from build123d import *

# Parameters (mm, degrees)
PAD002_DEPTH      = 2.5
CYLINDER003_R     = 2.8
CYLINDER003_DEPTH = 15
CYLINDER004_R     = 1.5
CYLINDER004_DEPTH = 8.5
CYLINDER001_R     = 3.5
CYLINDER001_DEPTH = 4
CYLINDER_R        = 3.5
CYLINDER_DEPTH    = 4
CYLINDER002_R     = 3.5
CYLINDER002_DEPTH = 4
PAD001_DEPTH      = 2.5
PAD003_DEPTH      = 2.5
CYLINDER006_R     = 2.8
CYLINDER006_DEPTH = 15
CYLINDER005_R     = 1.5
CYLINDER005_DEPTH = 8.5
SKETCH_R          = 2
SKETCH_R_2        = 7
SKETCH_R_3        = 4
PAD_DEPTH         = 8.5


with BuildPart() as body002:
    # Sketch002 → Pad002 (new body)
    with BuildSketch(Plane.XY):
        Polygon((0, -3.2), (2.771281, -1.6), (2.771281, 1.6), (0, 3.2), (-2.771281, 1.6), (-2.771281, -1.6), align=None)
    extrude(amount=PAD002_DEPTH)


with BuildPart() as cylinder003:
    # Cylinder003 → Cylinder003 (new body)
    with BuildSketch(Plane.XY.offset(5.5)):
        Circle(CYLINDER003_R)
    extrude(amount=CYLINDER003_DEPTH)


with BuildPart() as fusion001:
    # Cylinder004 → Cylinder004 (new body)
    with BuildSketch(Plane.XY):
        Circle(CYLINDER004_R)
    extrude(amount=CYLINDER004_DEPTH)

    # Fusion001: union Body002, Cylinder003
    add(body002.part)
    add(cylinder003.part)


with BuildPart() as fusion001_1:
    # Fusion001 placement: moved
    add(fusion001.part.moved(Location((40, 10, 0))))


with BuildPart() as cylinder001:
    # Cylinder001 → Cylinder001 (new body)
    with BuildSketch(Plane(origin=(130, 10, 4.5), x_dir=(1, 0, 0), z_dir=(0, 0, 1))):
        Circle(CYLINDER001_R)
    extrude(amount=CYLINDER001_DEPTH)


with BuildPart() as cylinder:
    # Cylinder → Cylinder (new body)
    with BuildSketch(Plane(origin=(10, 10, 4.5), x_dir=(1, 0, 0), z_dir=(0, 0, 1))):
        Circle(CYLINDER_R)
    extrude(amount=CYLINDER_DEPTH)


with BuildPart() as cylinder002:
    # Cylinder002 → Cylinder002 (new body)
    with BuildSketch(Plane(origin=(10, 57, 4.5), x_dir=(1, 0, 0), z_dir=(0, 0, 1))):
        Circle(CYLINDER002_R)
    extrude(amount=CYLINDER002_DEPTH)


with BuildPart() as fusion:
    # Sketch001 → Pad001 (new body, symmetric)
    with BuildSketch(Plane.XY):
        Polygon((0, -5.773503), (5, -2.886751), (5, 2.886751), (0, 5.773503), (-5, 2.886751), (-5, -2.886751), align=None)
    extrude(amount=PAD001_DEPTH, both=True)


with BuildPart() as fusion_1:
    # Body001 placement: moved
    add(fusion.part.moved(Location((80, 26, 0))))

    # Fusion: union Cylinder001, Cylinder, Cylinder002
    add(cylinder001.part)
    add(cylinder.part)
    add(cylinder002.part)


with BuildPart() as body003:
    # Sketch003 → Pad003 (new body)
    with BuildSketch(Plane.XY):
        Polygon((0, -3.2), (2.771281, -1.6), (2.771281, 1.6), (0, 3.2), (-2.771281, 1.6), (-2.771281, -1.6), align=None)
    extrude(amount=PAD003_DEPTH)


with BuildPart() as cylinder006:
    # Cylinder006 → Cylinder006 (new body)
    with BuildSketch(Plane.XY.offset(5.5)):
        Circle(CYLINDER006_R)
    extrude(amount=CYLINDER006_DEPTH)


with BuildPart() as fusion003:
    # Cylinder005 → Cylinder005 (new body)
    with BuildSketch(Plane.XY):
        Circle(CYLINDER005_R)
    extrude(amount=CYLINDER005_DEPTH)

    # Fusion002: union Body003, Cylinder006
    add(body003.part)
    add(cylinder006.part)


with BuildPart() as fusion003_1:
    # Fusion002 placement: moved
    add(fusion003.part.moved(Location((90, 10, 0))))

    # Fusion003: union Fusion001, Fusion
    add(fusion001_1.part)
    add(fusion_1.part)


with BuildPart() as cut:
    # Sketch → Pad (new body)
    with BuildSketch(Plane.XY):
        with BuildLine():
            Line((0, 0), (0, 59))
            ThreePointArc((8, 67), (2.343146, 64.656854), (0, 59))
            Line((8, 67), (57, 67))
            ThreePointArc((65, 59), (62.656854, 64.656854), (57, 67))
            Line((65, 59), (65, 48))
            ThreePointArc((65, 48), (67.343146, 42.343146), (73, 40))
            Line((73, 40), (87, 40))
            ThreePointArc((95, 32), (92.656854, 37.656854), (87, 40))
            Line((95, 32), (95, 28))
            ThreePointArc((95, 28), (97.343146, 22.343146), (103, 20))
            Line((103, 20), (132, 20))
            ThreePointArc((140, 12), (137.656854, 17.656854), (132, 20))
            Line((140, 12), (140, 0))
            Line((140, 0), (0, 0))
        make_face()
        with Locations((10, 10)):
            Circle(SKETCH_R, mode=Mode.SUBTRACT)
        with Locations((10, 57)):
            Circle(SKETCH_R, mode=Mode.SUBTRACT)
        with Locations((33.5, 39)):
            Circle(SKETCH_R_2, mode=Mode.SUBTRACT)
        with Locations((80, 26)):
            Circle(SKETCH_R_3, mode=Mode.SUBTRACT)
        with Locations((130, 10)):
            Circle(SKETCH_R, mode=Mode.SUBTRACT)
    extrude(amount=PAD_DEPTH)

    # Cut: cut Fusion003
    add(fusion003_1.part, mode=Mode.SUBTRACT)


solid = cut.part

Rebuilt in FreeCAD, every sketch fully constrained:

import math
import FreeCAD as App
import Part
import Sketcher
Q = App.Units.Quantity


def add_polygon(sketch, points):
    """Adds a closed chain of lines whose ends are joined by coincident constraints."""
    first, n = sketch.GeometryCount, len(points)
    for a, b in zip(points, points[1:] + points[:1]):
        sketch.addGeometry(Part.LineSegment(App.Vector(*a, 0), App.Vector(*b, 0)), False)
    for i in range(n):
        sketch.addConstraint(Sketcher.Constraint("Coincident", first + i, 2, first + (i + 1) % n, 1))

doc = App.newDocument("Part")
body = doc.addObject("PartDesign::Body", "Body")

# Sketch on XY plane
sketch1 = body.newObject("Sketcher::SketchObject", "Sketch")
sketch1.AttachmentSupport = (doc.getObject("XY_Plane"), [""])
sketch1.MapMode = "FlatFace"
add_polygon(sketch1, [(0, -3.2), (2.8, -1.6), (2.8, 1.6), (0, 3.2), (-2.8, 1.6), (-2.8, -1.6)])  # lines 0-5
sketch1.addConstraint(Sketcher.Constraint("Vertical", 1))
sketch1.addConstraint(Sketcher.Constraint("Vertical", 4))
sketch1.addConstraint(Sketcher.Constraint("Symmetric", 0, 2, 3, 2, -1, 1))
sketch1.addConstraint(Sketcher.Constraint("Symmetric", 2, 2, 5, 2, -1, 1))
sketch1.addConstraint(Sketcher.Constraint("PointOnObject", 2, 2, -2))
sketch1.addConstraint(Sketcher.Constraint("Parallel", 2, 5))
sketch1.addConstraint(Sketcher.Constraint("Horizontal", 1, 2, 3, 2))
sketch1.addConstraint(Sketcher.Constraint("Angle", 0, Q("30.000003 deg")))
sketch1.addConstraint(Sketcher.Constraint("DistanceY", 1, 1, 1, 2, Q("3.2 mm")))
sketch1.addConstraint(Sketcher.Constraint("Distance", 0, Q("3.2 mm")))
pad1 = body.newObject("PartDesign::Pad", "Pad")
pad1.Profile = sketch1
pad1.Length = 2.5
body2 = doc.addObject("PartDesign::Body", "Body001")

# Sketch on XY plane
sketch2 = body2.newObject("Sketcher::SketchObject", "Sketch001")
sketch2.AttachmentSupport = (doc.getObject("XY_Plane001"), [""])
sketch2.MapMode = "FlatFace"
sketch2.AttachmentOffset = App.Placement(App.Vector(0, 0, 5.5), App.Rotation())
sketch2.addGeometry(Part.Circle(App.Vector(0, 0, 0), App.Vector(0, 0, 1), 2.8), False)
sketch2.addConstraint(Sketcher.Constraint("Coincident", 0, 3, -1, 1))
sketch2.addConstraint(Sketcher.Constraint("Diameter", 0, Q("5.6 mm")))
pad2 = body2.newObject("PartDesign::Pad", "Pad001")
pad2.Profile = sketch2
pad2.Length = 15
body3 = doc.addObject("PartDesign::Body", "Body002")

# Sketch on XY plane
sketch3 = body3.newObject("Sketcher::SketchObject", "Sketch002")
sketch3.AttachmentSupport = (doc.getObject("XY_Plane002"), [""])
sketch3.MapMode = "FlatFace"
sketch3.addGeometry(Part.Circle(App.Vector(0, 0, 0), App.Vector(0, 0, 1), 1.5), False)
sketch3.addConstraint(Sketcher.Constraint("Coincident", 0, 3, -1, 1))
sketch3.addConstraint(Sketcher.Constraint("Diameter", 0, Q("3 mm")))
pad3 = body3.newObject("PartDesign::Pad", "Pad002")
pad3.Profile = sketch3
pad3.Length = 8.5
doc.recompute()

boolean = body3.newObject("PartDesign::Boolean", "Boolean")
boolean.Type = "Fuse"
boolean.addObjects([body])
doc.recompute()

boolean2 = body3.newObject("PartDesign::Boolean", "Boolean001")
boolean2.Type = "Fuse"
boolean2.addObjects([body2])
body4 = doc.addObject("PartDesign::Body", "Body003")
doc.recompute()

body3.Placement = App.Placement(App.Vector(40, 10, 0), App.Rotation(App.Vector(0, 0, 1), 0))
boolean3 = body4.newObject("PartDesign::Boolean", "Boolean002")
boolean3.Type = "Fuse"
boolean3.addObjects([body3])
body5 = doc.addObject("PartDesign::Body", "Body004")

# Sketch on XY plane
sketch4 = body5.newObject("Sketcher::SketchObject", "Sketch003")
sketch4.AttachmentSupport = (doc.getObject("XY_Plane004"), [""])
sketch4.MapMode = "FlatFace"
sketch4.AttachmentOffset = App.Placement(App.Vector(0, 0, 4.5), App.Rotation())
sketch4.addGeometry(Part.Circle(App.Vector(130, 10, 0), App.Vector(0, 0, 1), 3.5), False)
sketch4.addConstraint(Sketcher.Constraint("Diameter", 0, Q("7 mm")))
sketch4.addConstraint(Sketcher.Constraint("DistanceX", -1, 1, 0, 3, Q("130 mm")))
sketch4.addConstraint(Sketcher.Constraint("DistanceY", -1, 1, 0, 3, Q("10 mm")))
pad4 = body5.newObject("PartDesign::Pad", "Pad003")
pad4.Profile = sketch4
pad4.Length = 4
body6 = doc.addObject("PartDesign::Body", "Body005")

# Sketch on XY plane
sketch5 = body6.newObject("Sketcher::SketchObject", "Sketch004")
sketch5.AttachmentSupport = (doc.getObject("XY_Plane005"), [""])
sketch5.MapMode = "FlatFace"
sketch5.AttachmentOffset = App.Placement(App.Vector(0, 0, 4.5), App.Rotation())
sketch5.addGeometry(Part.Circle(App.Vector(10, 10, 0), App.Vector(0, 0, 1), 3.5), False)
sketch5.addConstraint(Sketcher.Constraint("Diameter", 0, Q("7 mm")))
sketch5.addConstraint(Sketcher.Constraint("DistanceX", -1, 1, 0, 3, Q("10 mm")))
sketch5.addConstraint(Sketcher.Constraint("DistanceY", -1, 1, 0, 3, Q("10 mm")))
pad5 = body6.newObject("PartDesign::Pad", "Pad004")
pad5.Profile = sketch5
pad5.Length = 4
body7 = doc.addObject("PartDesign::Body", "Body006")

# Sketch on XY plane
sketch6 = body7.newObject("Sketcher::SketchObject", "Sketch005")
sketch6.AttachmentSupport = (doc.getObject("XY_Plane006"), [""])
sketch6.MapMode = "FlatFace"
sketch6.AttachmentOffset = App.Placement(App.Vector(0, 0, 4.5), App.Rotation())
sketch6.addGeometry(Part.Circle(App.Vector(10, 57, 0), App.Vector(0, 0, 1), 3.5), False)
sketch6.addConstraint(Sketcher.Constraint("Diameter", 0, Q("7 mm")))
sketch6.addConstraint(Sketcher.Constraint("DistanceX", -1, 1, 0, 3, Q("10 mm")))
sketch6.addConstraint(Sketcher.Constraint("DistanceY", -1, 1, 0, 3, Q("57 mm")))
pad6 = body7.newObject("PartDesign::Pad", "Pad005")
pad6.Profile = sketch6
pad6.Length = 4
body8 = doc.addObject("PartDesign::Body", "Body007")

# Sketch on XY plane
sketch7 = body8.newObject("Sketcher::SketchObject", "Sketch006")
sketch7.AttachmentSupport = (doc.getObject("XY_Plane007"), [""])
sketch7.MapMode = "FlatFace"
add_polygon(sketch7, [(0, -6), (5, -3), (5, 3), (0, 6), (-5, 3), (-5, -3)])  # lines 0-5
sketch7.addConstraint(Sketcher.Constraint("Vertical", 1))
sketch7.addConstraint(Sketcher.Constraint("Vertical", 4))
sketch7.addConstraint(Sketcher.Constraint("Symmetric", 0, 2, 3, 2, -1, 1))
sketch7.addConstraint(Sketcher.Constraint("Symmetric", 2, 2, 5, 2, -1, 1))
sketch7.addConstraint(Sketcher.Constraint("PointOnObject", 2, 2, -2))
sketch7.addConstraint(Sketcher.Constraint("Parallel", 2, 5))
sketch7.addConstraint(Sketcher.Constraint("Horizontal", 1, 2, 3, 2))
sketch7.addConstraint(Sketcher.Constraint("Angle", 0, Q("30.000006 deg")))
sketch7.addConstraint(Sketcher.Constraint("DistanceX", -1, 1, 0, 2, Q("5 mm")))
sketch7.addConstraint(Sketcher.Constraint("DistanceY", 1, 1, 1, 2, Q("5.773502 mm")))
pad7 = body8.newObject("PartDesign::Pad", "Pad006")
pad7.Profile = sketch7
pad7.Length = 5
pad7.Midplane = True
body9 = doc.addObject("PartDesign::Body", "Body008")
body9.AllowCompound = True
doc.recompute()

body8.Placement = App.Placement(App.Vector(80, 26, 0), App.Rotation(App.Vector(0, 0, 1), 0))
boolean4 = body9.newObject("PartDesign::Boolean", "Boolean003")
boolean4.Type = "Fuse"
boolean4.addObjects([body8])
doc.recompute()

boolean5 = body9.newObject("PartDesign::Boolean", "Boolean004")
boolean5.Type = "Fuse"
boolean5.addObjects([body5])
doc.recompute()

boolean6 = body9.newObject("PartDesign::Boolean", "Boolean005")
boolean6.Type = "Fuse"
boolean6.addObjects([body6])
doc.recompute()

boolean7 = body9.newObject("PartDesign::Boolean", "Boolean006")
boolean7.Type = "Fuse"
boolean7.addObjects([body7])
body10 = doc.addObject("PartDesign::Body", "Body009")

# Sketch on XY plane
sketch8 = body10.newObject("Sketcher::SketchObject", "Sketch007")
sketch8.AttachmentSupport = (doc.getObject("XY_Plane009"), [""])
sketch8.MapMode = "FlatFace"
add_polygon(sketch8, [(0, -3.2), (2.8, -1.6), (2.8, 1.6), (0, 3.2), (-2.8, 1.6), (-2.8, -1.6)])  # lines 0-5
sketch8.addConstraint(Sketcher.Constraint("Vertical", 1))
sketch8.addConstraint(Sketcher.Constraint("Vertical", 4))
sketch8.addConstraint(Sketcher.Constraint("Symmetric", 0, 2, 3, 2, -1, 1))
sketch8.addConstraint(Sketcher.Constraint("Symmetric", 2, 2, 5, 2, -1, 1))
sketch8.addConstraint(Sketcher.Constraint("PointOnObject", 2, 2, -2))
sketch8.addConstraint(Sketcher.Constraint("Parallel", 2, 5))
sketch8.addConstraint(Sketcher.Constraint("Horizontal", 1, 2, 3, 2))
sketch8.addConstraint(Sketcher.Constraint("Angle", 0, Q("30.000003 deg")))
sketch8.addConstraint(Sketcher.Constraint("DistanceY", 1, 1, 1, 2, Q("3.2 mm")))
sketch8.addConstraint(Sketcher.Constraint("Distance", 0, Q("3.2 mm")))
pad8 = body10.newObject("PartDesign::Pad", "Pad007")
pad8.Profile = sketch8
pad8.Length = 2.5
body11 = doc.addObject("PartDesign::Body", "Body010")

# Sketch on XY plane
sketch9 = body11.newObject("Sketcher::SketchObject", "Sketch008")
sketch9.AttachmentSupport = (doc.getObject("XY_Plane010"), [""])
sketch9.MapMode = "FlatFace"
sketch9.AttachmentOffset = App.Placement(App.Vector(0, 0, 5.5), App.Rotation())
sketch9.addGeometry(Part.Circle(App.Vector(0, 0, 0), App.Vector(0, 0, 1), 2.8), False)
sketch9.addConstraint(Sketcher.Constraint("Coincident", 0, 3, -1, 1))
sketch9.addConstraint(Sketcher.Constraint("Diameter", 0, Q("5.6 mm")))
pad9 = body11.newObject("PartDesign::Pad", "Pad008")
pad9.Profile = sketch9
pad9.Length = 15
body12 = doc.addObject("PartDesign::Body", "Body011")

# Sketch on XY plane
sketch10 = body12.newObject("Sketcher::SketchObject", "Sketch009")
sketch10.AttachmentSupport = (doc.getObject("XY_Plane011"), [""])
sketch10.MapMode = "FlatFace"
sketch10.addGeometry(Part.Circle(App.Vector(0, 0, 0), App.Vector(0, 0, 1), 1.5), False)
sketch10.addConstraint(Sketcher.Constraint("Coincident", 0, 3, -1, 1))
sketch10.addConstraint(Sketcher.Constraint("Diameter", 0, Q("3 mm")))
pad10 = body12.newObject("PartDesign::Pad", "Pad009")
pad10.Profile = sketch10
pad10.Length = 8.5
doc.recompute()

boolean8 = body12.newObject("PartDesign::Boolean", "Boolean007")
boolean8.Type = "Fuse"
boolean8.addObjects([body10])
doc.recompute()

boolean9 = body12.newObject("PartDesign::Boolean", "Boolean008")
boolean9.Type = "Fuse"
boolean9.addObjects([body11])
body13 = doc.addObject("PartDesign::Body", "Body012")
body13.AllowCompound = True
doc.recompute()

body12.Placement = App.Placement(App.Vector(90, 10, 0), App.Rotation(App.Vector(0, 0, 1), 0))
boolean10 = body13.newObject("PartDesign::Boolean", "Boolean009")
boolean10.Type = "Fuse"
boolean10.addObjects([body12])
doc.recompute()

boolean11 = body13.newObject("PartDesign::Boolean", "Boolean010")
boolean11.Type = "Fuse"
boolean11.addObjects([body4])
doc.recompute()

boolean12 = body13.newObject("PartDesign::Boolean", "Boolean011")
boolean12.Type = "Fuse"
boolean12.addObjects([body9])
body14 = doc.addObject("PartDesign::Body", "Body013")

# Sketch on XY plane
sketch11 = body14.newObject("Sketcher::SketchObject", "Sketch010")
sketch11.AttachmentSupport = (doc.getObject("XY_Plane013"), [""])
sketch11.MapMode = "FlatFace"
sketch11.addGeometry(Part.LineSegment(App.Vector(0, 59, 0), App.Vector(0, 0, 0)), False)
sketch11.addGeometry(Part.LineSegment(App.Vector(0, 0, 0), App.Vector(140, 0, 0)), False)
sketch11.addGeometry(Part.LineSegment(App.Vector(140, 0, 0), App.Vector(140, 12, 0)), False)
sketch11.addGeometry(Part.ArcOfCircle(Part.Circle(App.Vector(132, 12, 0), App.Vector(0, 0, 1), 8), math.radians(0), math.radians(90)), False)
sketch11.addGeometry(Part.LineSegment(App.Vector(132, 20, 0), App.Vector(103, 20, 0)), False)
sketch11.addGeometry(Part.ArcOfCircle(Part.Circle(App.Vector(103, 28, 0), App.Vector(0, 0, 1), 8), math.radians(-180), math.radians(-90)), False)
sketch11.addGeometry(Part.LineSegment(App.Vector(95, 28, 0), App.Vector(95, 32, 0)), False)
sketch11.addGeometry(Part.ArcOfCircle(Part.Circle(App.Vector(87, 32, 0), App.Vector(0, 0, 1), 8), math.radians(0), math.radians(90)), False)
sketch11.addGeometry(Part.LineSegment(App.Vector(87, 40, 0), App.Vector(73, 40, 0)), False)
sketch11.addGeometry(Part.ArcOfCircle(Part.Circle(App.Vector(73, 48, 0), App.Vector(0, 0, 1), 8), math.radians(-180), math.radians(-90)), False)
sketch11.addGeometry(Part.LineSegment(App.Vector(65, 48, 0), App.Vector(65, 59, 0)), False)
sketch11.addGeometry(Part.ArcOfCircle(Part.Circle(App.Vector(57, 59, 0), App.Vector(0, 0, 1), 8), math.radians(0), math.radians(90)), False)
sketch11.addGeometry(Part.LineSegment(App.Vector(57, 67, 0), App.Vector(8, 67, 0)), False)
sketch11.addGeometry(Part.ArcOfCircle(Part.Circle(App.Vector(8, 59, 0), App.Vector(0, 0, 1), 8), math.radians(90), math.radians(180)), False)
sketch11.addGeometry(Part.Circle(App.Vector(130, 10, 0), App.Vector(0, 0, 1), 2), False)
sketch11.addGeometry(Part.Circle(App.Vector(80, 26, 0), App.Vector(0, 0, 1), 4), False)
sketch11.addGeometry(Part.Circle(App.Vector(10, 10, 0), App.Vector(0, 0, 1), 2), False)
sketch11.addGeometry(Part.Circle(App.Vector(33.5, 39, 0), App.Vector(0, 0, 1), 7), False)
sketch11.addGeometry(Part.Circle(App.Vector(10, 57, 0), App.Vector(0, 0, 1), 2), False)
sketch11.addConstraint(Sketcher.Constraint("Coincident", 0, 2, 1, 1))
sketch11.addConstraint(Sketcher.Constraint("Coincident", 1, 2, 2, 1))
sketch11.addConstraint(Sketcher.Constraint("Tangent", 2, 2, 3, 1))
sketch11.addConstraint(Sketcher.Constraint("Tangent", 3, 2, 4, 1))
sketch11.addConstraint(Sketcher.Constraint("Tangent", 4, 2, 5, 2))
sketch11.addConstraint(Sketcher.Constraint("Tangent", 5, 1, 6, 1))
sketch11.addConstraint(Sketcher.Constraint("Tangent", 6, 2, 7, 1))
sketch11.addConstraint(Sketcher.Constraint("Tangent", 7, 2, 8, 1))
sketch11.addConstraint(Sketcher.Constraint("Tangent", 8, 2, 9, 2))
sketch11.addConstraint(Sketcher.Constraint("Tangent", 9, 1, 10, 1))
sketch11.addConstraint(Sketcher.Constraint("Tangent", 10, 2, 11, 1))
sketch11.addConstraint(Sketcher.Constraint("Tangent", 11, 2, 12, 1))
sketch11.addConstraint(Sketcher.Constraint("Tangent", 12, 2, 13, 1))
sketch11.addConstraint(Sketcher.Constraint("Tangent", 13, 2, 0, 1))
sketch11.addConstraint(Sketcher.Constraint("Vertical", 0))
sketch11.addConstraint(Sketcher.Constraint("Horizontal", 1))
sketch11.addConstraint(Sketcher.Constraint("Vertical", 2))
sketch11.addConstraint(Sketcher.Constraint("Horizontal", 4))
sketch11.addConstraint(Sketcher.Constraint("Vertical", 6))
sketch11.addConstraint(Sketcher.Constraint("Horizontal", 8))
sketch11.addConstraint(Sketcher.Constraint("Vertical", 10))
sketch11.addConstraint(Sketcher.Constraint("Horizontal", 12))
sketch11.addConstraint(Sketcher.Constraint("Coincident", 0, 2, -1, 1))
sketch11.addConstraint(Sketcher.Constraint("Equal", 3, 5))
sketch11.addConstraint(Sketcher.Constraint("Equal", 5, 7))
sketch11.addConstraint(Sketcher.Constraint("Equal", 7, 9))
sketch11.addConstraint(Sketcher.Constraint("Equal", 9, 11))
sketch11.addConstraint(Sketcher.Constraint("Equal", 11, 13))
sketch11.addConstraint(Sketcher.Constraint("Equal", 14, 16))
sketch11.addConstraint(Sketcher.Constraint("Equal", 16, 18))
sketch11.addConstraint(Sketcher.Constraint("Horizontal", 14, 3, 16, 3))
sketch11.addConstraint(Sketcher.Constraint("Vertical", 16, 3, 18, 3))
sketch11.addConstraint(Sketcher.Constraint("Diameter", 14, Q("4 mm")))
sketch11.addConstraint(Sketcher.Constraint("Diameter", 15, Q("8 mm")))
sketch11.addConstraint(Sketcher.Constraint("Diameter", 17, Q("14 mm")))
sketch11.addConstraint(Sketcher.Constraint("Radius", 3, Q("8.000001 mm")))
sketch11.addConstraint(Sketcher.Constraint("DistanceX", 1, 1, 1, 2, Q("140 mm")))
sketch11.addConstraint(Sketcher.Constraint("DistanceX", 4, 2, 4, 1, Q("29 mm")))
sketch11.addConstraint(Sketcher.Constraint("DistanceX", 8, 2, 8, 1, Q("14 mm")))
sketch11.addConstraint(Sketcher.Constraint("DistanceY", 0, 2, 0, 1, Q("59 mm")))
sketch11.addConstraint(Sketcher.Constraint("DistanceY", 2, 1, 2, 2, Q("12 mm")))
sketch11.addConstraint(Sketcher.Constraint("DistanceY", 6, 1, 6, 2, Q("4 mm")))
sketch11.addConstraint(Sketcher.Constraint("DistanceX", -1, 1, 14, 3, Q("130 mm")))
sketch11.addConstraint(Sketcher.Constraint("DistanceY", -1, 1, 14, 3, Q("10 mm")))
sketch11.addConstraint(Sketcher.Constraint("DistanceX", -1, 1, 15, 3, Q("80 mm")))
sketch11.addConstraint(Sketcher.Constraint("DistanceY", -1, 1, 15, 3, Q("26 mm")))
sketch11.addConstraint(Sketcher.Constraint("DistanceX", -1, 1, 16, 3, Q("10 mm")))
sketch11.addConstraint(Sketcher.Constraint("DistanceY", -1, 1, 17, 3, Q("39 mm")))
sketch11.addConstraint(Sketcher.Constraint("DistanceY", -1, 1, 18, 3, Q("57 mm")))
sketch11.addConstraint(Sketcher.Constraint("DistanceX", -1, 1, 17, 3, Q("33.5 mm")))
pad11 = body14.newObject("PartDesign::Pad", "Pad010")
pad11.Profile = sketch11
pad11.Length = 8.5
doc.recompute()

boolean13 = body14.newObject("PartDesign::Boolean", "Boolean012")
boolean13.Type = "Cut"
boolean13.addObjects([body13])

doc.recompute()
